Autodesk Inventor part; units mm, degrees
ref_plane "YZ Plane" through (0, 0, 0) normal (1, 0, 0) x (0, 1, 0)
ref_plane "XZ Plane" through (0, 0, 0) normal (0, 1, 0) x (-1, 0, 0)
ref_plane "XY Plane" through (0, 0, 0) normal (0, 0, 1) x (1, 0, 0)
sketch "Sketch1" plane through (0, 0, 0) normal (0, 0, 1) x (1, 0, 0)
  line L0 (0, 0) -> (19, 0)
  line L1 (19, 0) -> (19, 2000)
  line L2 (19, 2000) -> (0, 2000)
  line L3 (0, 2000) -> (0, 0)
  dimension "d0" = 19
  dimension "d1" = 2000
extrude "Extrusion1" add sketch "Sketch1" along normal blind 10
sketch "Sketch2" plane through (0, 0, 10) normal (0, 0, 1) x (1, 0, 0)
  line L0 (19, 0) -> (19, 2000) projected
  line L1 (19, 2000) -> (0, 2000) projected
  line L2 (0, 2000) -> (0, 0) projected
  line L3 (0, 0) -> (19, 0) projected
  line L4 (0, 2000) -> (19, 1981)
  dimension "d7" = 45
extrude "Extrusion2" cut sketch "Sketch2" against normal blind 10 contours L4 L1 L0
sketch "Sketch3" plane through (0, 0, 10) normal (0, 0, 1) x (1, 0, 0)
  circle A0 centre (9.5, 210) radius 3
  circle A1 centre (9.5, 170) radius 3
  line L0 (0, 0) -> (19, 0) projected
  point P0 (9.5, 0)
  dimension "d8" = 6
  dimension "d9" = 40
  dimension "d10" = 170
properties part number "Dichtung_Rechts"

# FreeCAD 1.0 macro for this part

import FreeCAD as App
import Part
import Sketcher

V = App.Vector

doc = App.newDocument("Part")
params = doc.addObject("Spreadsheet::Sheet", "Params")
for row, (alias, value) in enumerate([
    ("sketch1_width", "19 mm"),
    ("sketch1_height", "2000 mm"),
    ("pad1_length", "10 mm"),
    ("sketch2_width", "19 mm"),
    ("pocket1_length", "10 mm"),
], start=1):
    params.set(f"A{row}", alias)
    params.set(f"B{row}", "=" + value)
    params.setAlias(f"B{row}", alias)

body = doc.addObject("PartDesign::Body", "Body")

sketch1 = body.newObject("Sketcher::SketchObject", "Sketch")
sketch1.AttachmentSupport = (doc.getObject("XY_Plane"), [""])
sketch1.MapMode = "FlatFace"
sketch1.addGeometry(Part.LineSegment(V(0, 2000, 0), V(0, 0, 0)), False)
sketch1.addGeometry(Part.LineSegment(V(0, 0, 0), V(19, 0, 0)), False)
sketch1.addGeometry(Part.LineSegment(V(19, 0, 0), V(19, 2000, 0)), False)
sketch1.addGeometry(Part.LineSegment(V(19, 2000, 0), V(0, 2000, 0)), False)
sketch1.addConstraint(Sketcher.Constraint("Coincident", 0, 2, 1, 1))
sketch1.addConstraint(Sketcher.Constraint("Coincident", 1, 2, 2, 1))
sketch1.addConstraint(Sketcher.Constraint("Coincident", 2, 2, 3, 1))
sketch1.addConstraint(Sketcher.Constraint("Coincident", 3, 2, 0, 1))
sketch1.addConstraint(Sketcher.Constraint("Vertical", 0))
sketch1.addConstraint(Sketcher.Constraint("Horizontal", 1))
sketch1.addConstraint(Sketcher.Constraint("Vertical", 2))
sketch1.addConstraint(Sketcher.Constraint("Horizontal", 3))
sketch1.addConstraint(Sketcher.Constraint("Coincident", 0, 2, -1, 1))
sketch1.addConstraint(Sketcher.Constraint("DistanceX", 1, 1, 1, 2, 19.0))
sketch1.addConstraint(Sketcher.Constraint("DistanceY", 0, 2, 0, 1, 2000.0))
sketch1.setExpression("Constraints[9]", "Params.sketch1_width")
sketch1.setExpression("Constraints[10]", "Params.sketch1_height")
pad1 = body.newObject("PartDesign::Pad", "Pad")
pad1.Profile = sketch1
pad1.setExpression("Length", "Params.pad1_length")

sketch2 = body.newObject("Sketcher::SketchObject", "Sketch001")
sketch2.AttachmentSupport = (doc.getObject("XY_Plane"), [""])
sketch2.MapMode = "FlatFace"
sketch2.AttachmentOffset = App.Placement(V(0, 0, 10), App.Rotation())
sketch2.addGeometry(Part.LineSegment(V(0, 2000, 0), V(19, 1981, 0)), False)
sketch2.addGeometry(Part.LineSegment(V(19, 1981, 0), V(19, 2000, 0)), False)
sketch2.addGeometry(Part.LineSegment(V(19, 2000, 0), V(0, 2000, 0)), False)
sketch2.addConstraint(Sketcher.Constraint("Coincident", 0, 2, 1, 1))
sketch2.addConstraint(Sketcher.Constraint("Coincident", 1, 2, 2, 1))
sketch2.addConstraint(Sketcher.Constraint("Coincident", 2, 2, 0, 1))
sketch2.addConstraint(Sketcher.Constraint("Vertical", 1))
sketch2.addConstraint(Sketcher.Constraint("Horizontal", 2))
sketch2.addConstraint(Sketcher.Constraint("PointOnObject", 2, 2, -2))
sketch2.addConstraint(Sketcher.Constraint("Equal", 2, 1))
sketch2.addConstraint(Sketcher.Constraint("DistanceX", 2, 2, 2, 1, 19.0))
sketch2.addConstraint(Sketcher.Constraint("DistanceY", -1, 1, 0, 2, 1981.0))
sketch2.setExpression("Constraints[7]", "Params.sketch2_width")
pocket1 = body.newObject("PartDesign::Pocket", "Pocket")
pocket1.Profile = sketch2
pocket1.setExpression("Length", "Params.pocket1_length")

doc.recompute()
